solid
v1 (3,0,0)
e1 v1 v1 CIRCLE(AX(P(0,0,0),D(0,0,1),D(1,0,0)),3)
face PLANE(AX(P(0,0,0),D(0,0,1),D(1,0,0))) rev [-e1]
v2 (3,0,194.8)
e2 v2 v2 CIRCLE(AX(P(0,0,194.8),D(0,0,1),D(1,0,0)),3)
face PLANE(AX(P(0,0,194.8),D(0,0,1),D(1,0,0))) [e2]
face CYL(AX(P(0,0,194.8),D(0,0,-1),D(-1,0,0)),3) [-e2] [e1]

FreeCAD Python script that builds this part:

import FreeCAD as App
import Part
import Sketcher

doc = App.newDocument("Part")
body = doc.addObject("PartDesign::Body", "Body")

# Sketch on XY plane
sketch1 = body.newObject("Sketcher::SketchObject", "Sketch")
sketch1.AttachmentSupport = (doc.getObject("XY_Plane"), [""])
sketch1.MapMode = "FlatFace"
sketch1.addGeometry(Part.Circle(App.Vector(0, 0, 0), App.Vector(0, 0, 1), 3), False)
sketch1.addConstraint(Sketcher.Constraint("Coincident", 0, 3, -1, 1))
sketch1.addConstraint(Sketcher.Constraint("Diameter", 0, 6.0))
pad1 = body.newObject("PartDesign::Pad", "Pad")
pad1.Profile = sketch1
pad1.Length = 194.8

doc.recompute()
